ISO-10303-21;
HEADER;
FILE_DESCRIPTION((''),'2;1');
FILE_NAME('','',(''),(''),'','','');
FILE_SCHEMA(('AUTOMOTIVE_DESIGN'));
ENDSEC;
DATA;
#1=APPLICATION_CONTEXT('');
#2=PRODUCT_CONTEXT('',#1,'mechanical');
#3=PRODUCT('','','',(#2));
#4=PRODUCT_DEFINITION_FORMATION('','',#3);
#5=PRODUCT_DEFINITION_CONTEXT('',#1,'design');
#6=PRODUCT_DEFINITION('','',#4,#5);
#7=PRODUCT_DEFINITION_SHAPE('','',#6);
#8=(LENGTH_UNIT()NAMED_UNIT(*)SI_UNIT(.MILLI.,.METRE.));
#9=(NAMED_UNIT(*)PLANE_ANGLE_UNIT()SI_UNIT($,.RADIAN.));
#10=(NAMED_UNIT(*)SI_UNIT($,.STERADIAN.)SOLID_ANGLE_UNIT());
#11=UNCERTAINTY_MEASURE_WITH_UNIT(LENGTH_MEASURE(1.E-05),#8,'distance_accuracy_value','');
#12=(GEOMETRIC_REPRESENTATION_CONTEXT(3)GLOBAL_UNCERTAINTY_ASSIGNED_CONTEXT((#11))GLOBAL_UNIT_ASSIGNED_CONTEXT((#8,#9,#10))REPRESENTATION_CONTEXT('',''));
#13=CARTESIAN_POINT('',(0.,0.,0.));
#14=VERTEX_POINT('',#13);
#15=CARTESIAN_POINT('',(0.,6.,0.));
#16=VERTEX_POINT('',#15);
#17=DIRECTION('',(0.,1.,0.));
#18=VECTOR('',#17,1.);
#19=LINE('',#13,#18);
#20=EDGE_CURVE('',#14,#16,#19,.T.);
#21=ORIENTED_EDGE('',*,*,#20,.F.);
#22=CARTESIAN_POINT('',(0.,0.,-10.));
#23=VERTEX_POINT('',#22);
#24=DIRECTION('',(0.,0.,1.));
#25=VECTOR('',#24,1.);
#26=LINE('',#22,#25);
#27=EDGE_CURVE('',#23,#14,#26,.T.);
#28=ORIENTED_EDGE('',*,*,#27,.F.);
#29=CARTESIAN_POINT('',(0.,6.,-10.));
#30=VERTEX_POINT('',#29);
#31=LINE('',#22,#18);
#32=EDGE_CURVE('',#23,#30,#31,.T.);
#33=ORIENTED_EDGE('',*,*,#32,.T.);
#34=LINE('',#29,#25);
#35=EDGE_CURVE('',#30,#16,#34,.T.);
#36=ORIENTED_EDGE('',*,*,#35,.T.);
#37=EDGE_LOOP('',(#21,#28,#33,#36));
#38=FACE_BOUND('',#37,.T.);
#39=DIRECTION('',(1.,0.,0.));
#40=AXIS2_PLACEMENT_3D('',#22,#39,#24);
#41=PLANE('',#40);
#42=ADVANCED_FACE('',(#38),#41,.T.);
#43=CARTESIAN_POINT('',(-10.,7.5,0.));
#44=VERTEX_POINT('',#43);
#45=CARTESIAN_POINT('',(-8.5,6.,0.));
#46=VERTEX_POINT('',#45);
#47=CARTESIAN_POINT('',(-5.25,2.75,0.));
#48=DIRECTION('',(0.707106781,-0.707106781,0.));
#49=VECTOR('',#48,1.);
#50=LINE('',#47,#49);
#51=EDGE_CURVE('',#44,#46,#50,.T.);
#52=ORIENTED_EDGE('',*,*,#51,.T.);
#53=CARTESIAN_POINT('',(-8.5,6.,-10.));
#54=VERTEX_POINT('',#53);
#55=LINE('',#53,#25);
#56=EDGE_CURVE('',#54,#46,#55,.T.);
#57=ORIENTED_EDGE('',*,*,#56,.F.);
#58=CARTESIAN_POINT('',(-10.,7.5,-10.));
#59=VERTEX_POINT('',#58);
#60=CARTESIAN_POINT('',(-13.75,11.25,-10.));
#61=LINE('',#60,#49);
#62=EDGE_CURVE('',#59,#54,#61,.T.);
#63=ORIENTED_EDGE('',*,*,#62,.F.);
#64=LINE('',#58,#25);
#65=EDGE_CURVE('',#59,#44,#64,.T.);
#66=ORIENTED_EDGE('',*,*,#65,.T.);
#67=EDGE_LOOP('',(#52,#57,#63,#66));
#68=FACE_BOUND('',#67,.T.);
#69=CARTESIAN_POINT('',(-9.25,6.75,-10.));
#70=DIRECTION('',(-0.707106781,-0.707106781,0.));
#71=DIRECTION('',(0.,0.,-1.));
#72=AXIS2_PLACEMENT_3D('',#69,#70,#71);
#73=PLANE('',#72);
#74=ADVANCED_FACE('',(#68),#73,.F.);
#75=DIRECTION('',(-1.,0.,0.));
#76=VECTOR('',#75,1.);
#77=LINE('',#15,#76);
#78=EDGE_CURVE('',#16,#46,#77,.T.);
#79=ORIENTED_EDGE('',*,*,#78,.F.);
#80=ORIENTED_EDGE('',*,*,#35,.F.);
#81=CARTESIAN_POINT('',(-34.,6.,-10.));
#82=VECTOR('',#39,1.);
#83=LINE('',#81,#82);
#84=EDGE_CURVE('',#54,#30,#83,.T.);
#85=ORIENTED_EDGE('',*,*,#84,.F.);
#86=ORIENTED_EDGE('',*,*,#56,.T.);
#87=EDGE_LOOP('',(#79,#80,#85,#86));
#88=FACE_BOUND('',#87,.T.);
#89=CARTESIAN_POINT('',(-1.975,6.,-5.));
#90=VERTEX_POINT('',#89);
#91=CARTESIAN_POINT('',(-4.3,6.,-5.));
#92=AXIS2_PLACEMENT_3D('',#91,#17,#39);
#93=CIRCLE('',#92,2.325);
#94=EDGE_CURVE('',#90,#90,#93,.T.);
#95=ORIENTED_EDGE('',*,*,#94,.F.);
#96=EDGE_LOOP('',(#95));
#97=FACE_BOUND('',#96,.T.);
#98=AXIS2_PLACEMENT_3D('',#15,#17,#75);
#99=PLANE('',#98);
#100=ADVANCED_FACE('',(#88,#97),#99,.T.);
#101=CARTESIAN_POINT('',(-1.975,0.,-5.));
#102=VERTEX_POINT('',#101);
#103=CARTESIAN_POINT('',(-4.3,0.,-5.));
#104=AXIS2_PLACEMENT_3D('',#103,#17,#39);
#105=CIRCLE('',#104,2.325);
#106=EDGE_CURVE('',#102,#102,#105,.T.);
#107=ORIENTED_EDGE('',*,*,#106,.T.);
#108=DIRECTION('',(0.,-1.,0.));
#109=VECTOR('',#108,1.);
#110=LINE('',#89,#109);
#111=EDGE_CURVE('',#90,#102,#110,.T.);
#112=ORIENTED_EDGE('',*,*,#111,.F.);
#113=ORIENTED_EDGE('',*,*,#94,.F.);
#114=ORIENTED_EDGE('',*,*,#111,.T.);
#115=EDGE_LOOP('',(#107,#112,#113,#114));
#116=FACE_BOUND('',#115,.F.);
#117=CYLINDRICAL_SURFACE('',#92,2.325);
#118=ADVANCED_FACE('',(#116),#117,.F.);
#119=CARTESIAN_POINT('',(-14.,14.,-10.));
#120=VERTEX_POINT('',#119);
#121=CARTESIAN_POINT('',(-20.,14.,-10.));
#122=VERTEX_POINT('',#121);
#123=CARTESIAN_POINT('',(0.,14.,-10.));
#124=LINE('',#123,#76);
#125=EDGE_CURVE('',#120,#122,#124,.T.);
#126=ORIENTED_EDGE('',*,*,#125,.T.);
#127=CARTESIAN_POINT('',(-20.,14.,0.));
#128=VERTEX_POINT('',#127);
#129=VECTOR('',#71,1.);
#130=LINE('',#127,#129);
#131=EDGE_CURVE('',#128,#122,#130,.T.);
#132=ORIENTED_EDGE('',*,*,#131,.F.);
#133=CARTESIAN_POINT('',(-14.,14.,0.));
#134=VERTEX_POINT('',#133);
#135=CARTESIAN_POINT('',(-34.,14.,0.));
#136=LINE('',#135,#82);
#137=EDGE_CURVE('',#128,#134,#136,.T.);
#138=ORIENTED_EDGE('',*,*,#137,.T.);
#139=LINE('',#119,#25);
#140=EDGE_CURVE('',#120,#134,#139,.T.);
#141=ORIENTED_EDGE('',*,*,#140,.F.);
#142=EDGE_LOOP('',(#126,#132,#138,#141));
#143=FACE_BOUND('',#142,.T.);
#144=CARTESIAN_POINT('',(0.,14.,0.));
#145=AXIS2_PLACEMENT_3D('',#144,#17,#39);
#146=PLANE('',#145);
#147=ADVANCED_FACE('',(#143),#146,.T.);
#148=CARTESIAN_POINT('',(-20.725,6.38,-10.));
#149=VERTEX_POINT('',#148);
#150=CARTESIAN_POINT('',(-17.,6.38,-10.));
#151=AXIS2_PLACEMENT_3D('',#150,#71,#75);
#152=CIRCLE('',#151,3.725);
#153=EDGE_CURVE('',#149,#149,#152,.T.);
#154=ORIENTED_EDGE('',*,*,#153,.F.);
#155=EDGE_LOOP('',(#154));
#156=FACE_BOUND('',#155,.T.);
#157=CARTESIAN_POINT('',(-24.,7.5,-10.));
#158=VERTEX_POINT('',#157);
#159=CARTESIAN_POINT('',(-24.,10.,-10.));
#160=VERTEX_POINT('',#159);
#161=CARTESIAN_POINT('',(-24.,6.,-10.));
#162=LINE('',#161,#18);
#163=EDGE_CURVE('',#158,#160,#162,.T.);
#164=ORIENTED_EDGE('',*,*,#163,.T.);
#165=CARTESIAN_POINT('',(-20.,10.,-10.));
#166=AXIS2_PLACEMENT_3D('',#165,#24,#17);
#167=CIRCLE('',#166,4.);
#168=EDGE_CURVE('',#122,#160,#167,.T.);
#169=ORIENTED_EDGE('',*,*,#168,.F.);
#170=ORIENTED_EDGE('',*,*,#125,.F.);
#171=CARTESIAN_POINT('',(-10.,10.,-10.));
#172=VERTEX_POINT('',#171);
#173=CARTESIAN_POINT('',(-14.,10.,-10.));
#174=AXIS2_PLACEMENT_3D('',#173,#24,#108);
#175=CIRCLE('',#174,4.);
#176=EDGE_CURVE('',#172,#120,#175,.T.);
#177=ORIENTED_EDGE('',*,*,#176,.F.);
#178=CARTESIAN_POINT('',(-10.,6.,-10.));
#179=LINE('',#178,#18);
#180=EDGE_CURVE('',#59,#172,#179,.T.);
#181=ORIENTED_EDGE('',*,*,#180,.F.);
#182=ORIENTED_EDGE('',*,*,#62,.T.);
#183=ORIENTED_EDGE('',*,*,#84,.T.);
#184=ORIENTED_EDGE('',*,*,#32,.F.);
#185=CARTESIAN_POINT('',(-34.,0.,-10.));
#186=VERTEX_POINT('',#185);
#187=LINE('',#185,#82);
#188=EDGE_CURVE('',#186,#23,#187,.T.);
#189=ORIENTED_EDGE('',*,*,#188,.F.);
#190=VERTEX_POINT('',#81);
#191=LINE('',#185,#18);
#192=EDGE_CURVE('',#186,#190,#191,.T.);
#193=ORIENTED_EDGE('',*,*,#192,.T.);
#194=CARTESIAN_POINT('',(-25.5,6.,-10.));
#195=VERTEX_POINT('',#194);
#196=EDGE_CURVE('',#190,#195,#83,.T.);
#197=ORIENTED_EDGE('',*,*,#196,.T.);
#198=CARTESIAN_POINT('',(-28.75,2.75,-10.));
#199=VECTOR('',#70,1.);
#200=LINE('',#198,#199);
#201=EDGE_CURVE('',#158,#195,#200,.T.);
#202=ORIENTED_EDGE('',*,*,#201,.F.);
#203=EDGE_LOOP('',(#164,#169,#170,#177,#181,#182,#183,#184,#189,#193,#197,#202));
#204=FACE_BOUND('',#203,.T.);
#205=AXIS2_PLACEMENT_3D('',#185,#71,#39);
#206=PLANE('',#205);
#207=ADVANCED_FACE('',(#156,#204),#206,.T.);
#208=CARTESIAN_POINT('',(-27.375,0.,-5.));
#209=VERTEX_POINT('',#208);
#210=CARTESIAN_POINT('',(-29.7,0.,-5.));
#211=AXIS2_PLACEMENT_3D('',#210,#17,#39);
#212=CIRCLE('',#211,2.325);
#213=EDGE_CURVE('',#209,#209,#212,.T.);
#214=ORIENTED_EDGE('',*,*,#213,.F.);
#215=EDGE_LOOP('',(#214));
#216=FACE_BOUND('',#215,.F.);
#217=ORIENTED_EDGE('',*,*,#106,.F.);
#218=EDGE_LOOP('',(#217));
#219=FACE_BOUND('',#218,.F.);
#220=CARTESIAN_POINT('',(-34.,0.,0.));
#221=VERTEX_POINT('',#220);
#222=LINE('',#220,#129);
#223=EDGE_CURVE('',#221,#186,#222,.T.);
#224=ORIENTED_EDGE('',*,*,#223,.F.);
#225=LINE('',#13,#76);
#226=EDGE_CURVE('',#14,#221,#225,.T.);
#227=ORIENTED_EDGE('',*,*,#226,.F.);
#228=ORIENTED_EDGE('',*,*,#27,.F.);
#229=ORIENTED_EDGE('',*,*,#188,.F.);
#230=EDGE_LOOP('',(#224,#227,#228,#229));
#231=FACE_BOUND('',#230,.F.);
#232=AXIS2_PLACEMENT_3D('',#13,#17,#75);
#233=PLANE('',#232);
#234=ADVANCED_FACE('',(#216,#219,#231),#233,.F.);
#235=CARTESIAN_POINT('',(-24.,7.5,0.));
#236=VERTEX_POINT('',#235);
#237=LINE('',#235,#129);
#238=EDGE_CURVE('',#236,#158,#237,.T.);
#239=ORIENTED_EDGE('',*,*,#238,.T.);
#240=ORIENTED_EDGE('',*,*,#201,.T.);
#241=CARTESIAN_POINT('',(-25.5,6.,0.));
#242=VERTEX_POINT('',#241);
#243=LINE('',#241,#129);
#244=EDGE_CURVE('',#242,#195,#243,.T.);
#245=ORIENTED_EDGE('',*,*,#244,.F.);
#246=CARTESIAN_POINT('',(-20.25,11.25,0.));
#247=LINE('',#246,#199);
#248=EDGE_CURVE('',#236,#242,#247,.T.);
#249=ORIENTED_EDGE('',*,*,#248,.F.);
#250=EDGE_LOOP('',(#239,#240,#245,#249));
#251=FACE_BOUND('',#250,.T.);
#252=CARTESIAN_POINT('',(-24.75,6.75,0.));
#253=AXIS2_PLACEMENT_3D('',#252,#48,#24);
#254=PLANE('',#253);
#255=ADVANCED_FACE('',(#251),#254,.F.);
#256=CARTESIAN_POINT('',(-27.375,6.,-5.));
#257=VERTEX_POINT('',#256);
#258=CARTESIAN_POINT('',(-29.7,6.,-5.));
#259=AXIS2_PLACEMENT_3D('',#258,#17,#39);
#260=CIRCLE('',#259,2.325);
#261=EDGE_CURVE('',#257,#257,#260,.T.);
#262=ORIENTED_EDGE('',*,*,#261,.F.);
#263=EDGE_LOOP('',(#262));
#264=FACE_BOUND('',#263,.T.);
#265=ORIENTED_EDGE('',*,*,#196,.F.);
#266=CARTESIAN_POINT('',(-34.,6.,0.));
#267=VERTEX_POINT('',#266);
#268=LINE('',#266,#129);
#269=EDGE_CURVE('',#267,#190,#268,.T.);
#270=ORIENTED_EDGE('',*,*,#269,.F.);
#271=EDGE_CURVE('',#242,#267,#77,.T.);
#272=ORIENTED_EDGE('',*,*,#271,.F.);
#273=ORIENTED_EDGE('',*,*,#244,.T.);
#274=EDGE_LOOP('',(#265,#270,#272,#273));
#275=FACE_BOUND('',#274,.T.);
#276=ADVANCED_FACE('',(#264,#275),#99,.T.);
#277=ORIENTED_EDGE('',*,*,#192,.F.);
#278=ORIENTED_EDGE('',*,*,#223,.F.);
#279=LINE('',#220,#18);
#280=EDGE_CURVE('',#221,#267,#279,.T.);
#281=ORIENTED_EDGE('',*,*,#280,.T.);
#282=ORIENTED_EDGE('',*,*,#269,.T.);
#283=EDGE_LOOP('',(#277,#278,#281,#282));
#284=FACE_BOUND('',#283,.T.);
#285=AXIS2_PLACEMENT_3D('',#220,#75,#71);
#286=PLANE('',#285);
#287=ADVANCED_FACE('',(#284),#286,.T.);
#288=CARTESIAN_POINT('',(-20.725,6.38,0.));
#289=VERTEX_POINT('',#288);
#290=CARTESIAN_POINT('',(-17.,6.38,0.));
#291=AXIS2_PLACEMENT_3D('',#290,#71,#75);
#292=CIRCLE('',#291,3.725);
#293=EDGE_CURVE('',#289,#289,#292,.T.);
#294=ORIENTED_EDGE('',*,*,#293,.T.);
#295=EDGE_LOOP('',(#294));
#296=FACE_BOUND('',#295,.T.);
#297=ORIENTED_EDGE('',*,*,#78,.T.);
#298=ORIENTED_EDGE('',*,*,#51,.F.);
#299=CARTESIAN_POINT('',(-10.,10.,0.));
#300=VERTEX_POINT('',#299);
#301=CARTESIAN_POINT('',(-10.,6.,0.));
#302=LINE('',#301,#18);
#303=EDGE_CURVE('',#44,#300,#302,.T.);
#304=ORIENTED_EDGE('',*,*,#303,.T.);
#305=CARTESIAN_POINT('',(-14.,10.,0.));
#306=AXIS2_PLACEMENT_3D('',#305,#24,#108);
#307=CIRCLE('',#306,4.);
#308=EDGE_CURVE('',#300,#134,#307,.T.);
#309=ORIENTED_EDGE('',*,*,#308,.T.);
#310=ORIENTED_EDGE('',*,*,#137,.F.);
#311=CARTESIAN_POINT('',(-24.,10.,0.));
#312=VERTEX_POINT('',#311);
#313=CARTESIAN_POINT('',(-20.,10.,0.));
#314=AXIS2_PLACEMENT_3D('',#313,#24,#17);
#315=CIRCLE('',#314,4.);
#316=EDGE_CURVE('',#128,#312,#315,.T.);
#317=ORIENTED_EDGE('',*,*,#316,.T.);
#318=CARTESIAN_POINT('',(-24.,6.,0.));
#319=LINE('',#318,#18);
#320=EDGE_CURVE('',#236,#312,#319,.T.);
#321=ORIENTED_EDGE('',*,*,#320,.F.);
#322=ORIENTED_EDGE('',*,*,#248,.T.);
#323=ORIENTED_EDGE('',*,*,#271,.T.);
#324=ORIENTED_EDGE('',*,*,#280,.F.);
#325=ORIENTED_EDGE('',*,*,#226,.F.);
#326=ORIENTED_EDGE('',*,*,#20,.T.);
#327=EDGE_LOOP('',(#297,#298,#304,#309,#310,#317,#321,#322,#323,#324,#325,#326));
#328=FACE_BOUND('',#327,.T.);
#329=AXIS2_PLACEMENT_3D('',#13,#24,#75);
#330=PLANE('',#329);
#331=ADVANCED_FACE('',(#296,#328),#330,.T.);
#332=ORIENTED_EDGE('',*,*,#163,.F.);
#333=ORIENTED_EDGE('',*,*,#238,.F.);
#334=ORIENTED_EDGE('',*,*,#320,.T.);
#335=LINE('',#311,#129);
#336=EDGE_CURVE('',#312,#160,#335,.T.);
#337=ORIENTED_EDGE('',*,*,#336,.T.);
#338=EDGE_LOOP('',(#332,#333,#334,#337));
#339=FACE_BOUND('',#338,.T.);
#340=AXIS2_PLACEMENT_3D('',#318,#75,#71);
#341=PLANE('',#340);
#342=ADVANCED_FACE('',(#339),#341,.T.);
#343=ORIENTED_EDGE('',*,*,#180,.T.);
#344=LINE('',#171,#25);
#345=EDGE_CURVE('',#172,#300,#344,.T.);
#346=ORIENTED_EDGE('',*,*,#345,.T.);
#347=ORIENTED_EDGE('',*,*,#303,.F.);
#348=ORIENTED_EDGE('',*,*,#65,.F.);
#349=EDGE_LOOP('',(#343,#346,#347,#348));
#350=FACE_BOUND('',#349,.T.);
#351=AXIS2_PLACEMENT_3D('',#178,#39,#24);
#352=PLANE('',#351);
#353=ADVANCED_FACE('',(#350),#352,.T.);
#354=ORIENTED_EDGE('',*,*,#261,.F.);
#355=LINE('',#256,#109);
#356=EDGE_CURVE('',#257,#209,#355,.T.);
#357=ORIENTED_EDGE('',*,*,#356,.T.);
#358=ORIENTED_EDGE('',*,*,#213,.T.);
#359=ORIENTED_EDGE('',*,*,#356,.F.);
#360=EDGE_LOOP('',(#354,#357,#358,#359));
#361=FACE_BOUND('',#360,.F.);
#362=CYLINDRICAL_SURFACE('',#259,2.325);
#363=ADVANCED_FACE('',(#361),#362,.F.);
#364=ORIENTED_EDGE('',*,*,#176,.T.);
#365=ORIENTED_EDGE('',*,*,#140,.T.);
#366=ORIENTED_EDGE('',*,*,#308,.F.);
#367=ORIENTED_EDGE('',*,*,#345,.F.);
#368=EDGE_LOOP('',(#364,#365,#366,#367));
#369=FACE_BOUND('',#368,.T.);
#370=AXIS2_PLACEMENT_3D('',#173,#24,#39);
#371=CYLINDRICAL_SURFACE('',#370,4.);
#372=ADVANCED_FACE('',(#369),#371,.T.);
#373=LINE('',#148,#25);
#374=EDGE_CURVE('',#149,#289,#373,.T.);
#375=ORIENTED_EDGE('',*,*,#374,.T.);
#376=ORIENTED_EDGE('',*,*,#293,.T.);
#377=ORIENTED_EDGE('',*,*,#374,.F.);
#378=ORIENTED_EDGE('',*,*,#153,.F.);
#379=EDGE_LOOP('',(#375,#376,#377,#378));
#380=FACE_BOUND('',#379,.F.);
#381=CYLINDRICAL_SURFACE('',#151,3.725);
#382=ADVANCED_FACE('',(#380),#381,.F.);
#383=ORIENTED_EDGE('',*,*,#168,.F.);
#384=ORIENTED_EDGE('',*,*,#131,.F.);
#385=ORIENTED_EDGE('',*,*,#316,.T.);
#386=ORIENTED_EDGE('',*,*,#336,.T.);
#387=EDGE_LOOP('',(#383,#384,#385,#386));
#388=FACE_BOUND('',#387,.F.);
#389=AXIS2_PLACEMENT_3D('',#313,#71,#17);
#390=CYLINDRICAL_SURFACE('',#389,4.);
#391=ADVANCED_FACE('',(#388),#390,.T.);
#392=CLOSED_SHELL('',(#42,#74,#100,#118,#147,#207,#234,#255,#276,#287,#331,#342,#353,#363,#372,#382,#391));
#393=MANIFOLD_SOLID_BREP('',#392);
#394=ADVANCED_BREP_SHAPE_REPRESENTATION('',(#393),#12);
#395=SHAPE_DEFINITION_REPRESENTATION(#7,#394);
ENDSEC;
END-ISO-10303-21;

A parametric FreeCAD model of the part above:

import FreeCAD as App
import Part
import Sketcher

V = App.Vector
Q = App.Units.Quantity


def edges_at(feature, points):
    """Names of the edges that pass closest to the given points."""
    edges = feature.Shape.Edges
    near = lambda p: min(range(len(edges)), key=lambda i: edges[i].distToShape(Part.Vertex(*p))[0])
    return sorted({f"Edge{near(p) + 1}" for p in points})


def add_polygon(sketch, points):
    """Adds a closed chain of lines whose ends are joined by coincident constraints."""
    first, n = sketch.GeometryCount, len(points)
    for a, b in zip(points, points[1:] + points[:1]):
        sketch.addGeometry(Part.LineSegment(App.Vector(*a, 0), App.Vector(*b, 0)), False)
    for i in range(n):
        sketch.addConstraint(Sketcher.Constraint("Coincident", first + i, 2, first + (i + 1) % n, 1))

doc = App.newDocument("Part")
body = doc.addObject("PartDesign::Body", "Body")

# Sketch on XZ plane
sketch1 = body.newObject("Sketcher::SketchObject", "Sketch")
sketch1.AttachmentSupport = (doc.getObject("XZ_Plane"), [""])
sketch1.MapMode = "FlatFace"
add_polygon(sketch1, [(-34, 0), (0, 0), (0, -10), (-34, -10)])  # lines 0-3
sketch1.addConstraint([
    Sketcher.Constraint("Horizontal", 0),
    Sketcher.Constraint("Vertical", 1),
    Sketcher.Constraint("Horizontal", 2),
    Sketcher.Constraint("Vertical", 3),
    Sketcher.Constraint("Coincident", 0, 2, -1, 1),
    Sketcher.Constraint("DistanceX", 0, 1, 0, 2, Q("34 mm")),
    Sketcher.Constraint("DistanceY", 1, 2, 1, 1, Q("10 mm")),
])
pad1 = body.newObject("PartDesign::Pad", "Pad")
pad1.Profile = sketch1
pad1.Length = 6
pad1.Reversed = True

# Sketch on XZ plane
sketch2 = body.newObject("Sketcher::SketchObject", "Sketch001")
sketch2.AttachmentSupport = (doc.getObject("XZ_Plane"), [""])
sketch2.MapMode = "FlatFace"
sketch2.AttachmentOffset = App.Placement(V(0, 0, -6), App.Rotation())
sketch2.addGeometry([
    Part.Circle(V(-4.3, -5, 0), V(0, 0, 1), 2.325),
    Part.Circle(V(-29.7, -5, 0), V(0, 0, 1), 2.325),
], False)
sketch2.addConstraint([
    Sketcher.Constraint("Equal", 0, 1),
    Sketcher.Constraint("Horizontal", 0, 3, 1, 3),
    Sketcher.Constraint("Diameter", 0, Q("4.65 mm")),
    Sketcher.Constraint("DistanceY", 0, 3, -1, 1, Q("5 mm")),
    Sketcher.Constraint("DistanceX", 0, 3, -1, 1, Q("4.3 mm")),
    Sketcher.Constraint("DistanceX", 1, 3, -1, 1, Q("29.7 mm")),
])
pocket1 = body.newObject("PartDesign::Pocket", "Pocket")
pocket1.Profile = sketch2
pocket1.Type = "ThroughAll"
pocket1.Reversed = True

# Sketch on XZ plane
sketch3 = body.newObject("Sketcher::SketchObject", "Sketch002")
sketch3.AttachmentSupport = (doc.getObject("XZ_Plane"), [""])
sketch3.MapMode = "FlatFace"
sketch3.AttachmentOffset = App.Placement(V(0, 0, -6), App.Rotation())
add_polygon(sketch3, [(-24, -10), (-24, 0), (-10, 0), (-10, -10)])  # lines 0-3
sketch3.addConstraint([
    Sketcher.Constraint("Vertical", 0),
    Sketcher.Constraint("Horizontal", 1),
    Sketcher.Constraint("Vertical", 2),
    Sketcher.Constraint("Horizontal", 3),
    Sketcher.Constraint("PointOnObject", 0, 2, -1),
    Sketcher.Constraint("DistanceX", 1, 1, 1, 2, Q("14 mm")),
    Sketcher.Constraint("DistanceY", 0, 1, 0, 2, Q("10 mm")),
    Sketcher.Constraint("DistanceX", 1, 2, -1, 1, Q("10 mm")),
])
pad2 = body.newObject("PartDesign::Pad", "Pad001")
pad2.Profile = sketch3
pad2.Length = 8
pad2.Reversed = True

# Sketch on XY plane
sketch4 = body.newObject("Sketcher::SketchObject", "Sketch003")
sketch4.AttachmentSupport = (doc.getObject("XY_Plane"), [""])
sketch4.MapMode = "FlatFace"
sketch4.AttachmentOffset = App.Placement(V(0, 0, -10), App.Rotation())
sketch4.addGeometry(Part.Circle(V(-17, 6.38, 0), V(0, 0, 1), 3.725), False)
sketch4.addConstraint([
    Sketcher.Constraint("Diameter", 0, Q("7.45 mm")),
    Sketcher.Constraint("DistanceX", 0, 3, -1, 1, Q("17 mm")),
    Sketcher.Constraint("DistanceY", -1, 1, 0, 3, Q("6.38 mm")),
])
pocket2 = body.newObject("PartDesign::Pocket", "Pocket001")
pocket2.Profile = sketch4
pocket2.Type = "ThroughAll"
pocket2.Reversed = True
doc.recompute()

fillet = body.newObject("PartDesign::Fillet", "Fillet")
fillet.Base = (pocket2, edges_at(pocket2, [(-24, 14, -5), (-10, 14, -5)]))
fillet.Radius = 4
doc.recompute()

chamfer = body.newObject("PartDesign::Chamfer", "Chamfer")
chamfer.Base = (fillet, edges_at(fillet, [(-10, 6, -5), (-24, 6, -5)]))
chamfer.Size = 1.5

doc.recompute()
